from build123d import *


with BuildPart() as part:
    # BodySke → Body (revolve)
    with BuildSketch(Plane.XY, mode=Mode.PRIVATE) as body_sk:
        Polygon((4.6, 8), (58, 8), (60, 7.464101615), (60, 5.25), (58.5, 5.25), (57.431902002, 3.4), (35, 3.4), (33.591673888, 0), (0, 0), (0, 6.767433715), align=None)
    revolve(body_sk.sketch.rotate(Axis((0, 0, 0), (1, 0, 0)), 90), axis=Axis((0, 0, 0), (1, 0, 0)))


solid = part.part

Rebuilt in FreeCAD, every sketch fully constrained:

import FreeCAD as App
import Part
import Sketcher

V = App.Vector
Q = App.Units.Quantity

doc = App.newDocument("Part")
body = doc.addObject("PartDesign::Body", "Body")

# Sketch on XY plane
sketch1 = body.newObject("Sketcher::SketchObject", "Sketch")
sketch1.AttachmentSupport = (doc.getObject("XY_Plane"), [""])
sketch1.MapMode = "FlatFace"
sketch1.addGeometry(Part.LineSegment(V(58, 8, 0), V(4.6, 8, 0)), False)
sketch1.addGeometry(Part.LineSegment(V(4.6, 8, 0), V(0, 6.8, 0)), False)
sketch1.addGeometry(Part.LineSegment(V(0, 6.8, 0), V(0, 0, 0)), False)
sketch1.addGeometry(Part.LineSegment(V(0, 0, 0), V(33.6, 0, 0)), False)
sketch1.addGeometry(Part.LineSegment(V(33.6, 0, 0), V(35, 3.4, 0)), False)
sketch1.addGeometry(Part.LineSegment(V(35, 3.4, 0), V(57.4, 3.4, 0)), False)
sketch1.addGeometry(Part.LineSegment(V(57.4, 3.4, 0), V(58.5, 5.2, 0)), False)
sketch1.addGeometry(Part.LineSegment(V(58.5, 5.2, 0), V(60, 5.2, 0)), False)
sketch1.addGeometry(Part.LineSegment(V(60, 5.2, 0), V(60, 7.5, 0)), False)
sketch1.addGeometry(Part.LineSegment(V(60, 7.5, 0), V(58, 8, 0)), False)
sketch1.addConstraint(Sketcher.Constraint("Coincident", 0, 2, 1, 1))
sketch1.addConstraint(Sketcher.Constraint("Coincident", 1, 2, 2, 1))
sketch1.addConstraint(Sketcher.Constraint("Coincident", 2, 2, 3, 1))
sketch1.addConstraint(Sketcher.Constraint("Coincident", 3, 2, 4, 1))
sketch1.addConstraint(Sketcher.Constraint("Coincident", 4, 2, 5, 1))
sketch1.addConstraint(Sketcher.Constraint("Coincident", 5, 2, 6, 1))
sketch1.addConstraint(Sketcher.Constraint("Coincident", 6, 2, 7, 1))
sketch1.addConstraint(Sketcher.Constraint("Coincident", 7, 2, 8, 1))
sketch1.addConstraint(Sketcher.Constraint("Coincident", 8, 2, 9, 1))
sketch1.addConstraint(Sketcher.Constraint("Coincident", 9, 2, 0, 1))
sketch1.addConstraint(Sketcher.Constraint("Horizontal", 0))
sketch1.addConstraint(Sketcher.Constraint("Vertical", 2))
sketch1.addConstraint(Sketcher.Constraint("Horizontal", 3))
sketch1.addConstraint(Sketcher.Constraint("Horizontal", 5))
sketch1.addConstraint(Sketcher.Constraint("Horizontal", 7))
sketch1.addConstraint(Sketcher.Constraint("Vertical", 8))
sketch1.addConstraint(Sketcher.Constraint("Coincident", 2, 2, -1, 1))
sketch1.addConstraint(Sketcher.Constraint("Angle", 1, Q("-165 deg")))
sketch1.addConstraint(Sketcher.Constraint("Angle", 6, Q("60 deg")))
sketch1.addConstraint(Sketcher.Constraint("Angle", 9, Q("165 deg")))
sketch1.addConstraint(Sketcher.Constraint("DistanceX", 0, 2, 0, 1, 53.4))
sketch1.addConstraint(Sketcher.Constraint("DistanceX", 7, 1, 7, 2, 1.5))
sketch1.addConstraint(Sketcher.Constraint("DistanceY", -1, 1, 0, 2, 8.0))
sketch1.addConstraint(Sketcher.Constraint("DistanceX", -1, 1, 4, 2, 35.0))
sketch1.addConstraint(Sketcher.Constraint("DistanceX", -1, 1, 7, 2, 60.0))
sketch1.addConstraint(Sketcher.Constraint("DistanceX", -1, 1, 9, 2, 58.0))
sketch1.addConstraint(Sketcher.Constraint("Angle", 4, Q("67.5 deg")))
sketch1.addConstraint(Sketcher.Constraint("DistanceY", -1, 1, 4, 2, 3.4))
sketch1.addConstraint(Sketcher.Constraint("DistanceY", -1, 1, 6, 2, 5.25))
revolution = body.newObject("PartDesign::Revolution", "Revolution")
revolution.Profile = sketch1
revolution.ReferenceAxis = (sketch1, ["H_Axis"])
revolution.Angle = 360

doc.recompute()
